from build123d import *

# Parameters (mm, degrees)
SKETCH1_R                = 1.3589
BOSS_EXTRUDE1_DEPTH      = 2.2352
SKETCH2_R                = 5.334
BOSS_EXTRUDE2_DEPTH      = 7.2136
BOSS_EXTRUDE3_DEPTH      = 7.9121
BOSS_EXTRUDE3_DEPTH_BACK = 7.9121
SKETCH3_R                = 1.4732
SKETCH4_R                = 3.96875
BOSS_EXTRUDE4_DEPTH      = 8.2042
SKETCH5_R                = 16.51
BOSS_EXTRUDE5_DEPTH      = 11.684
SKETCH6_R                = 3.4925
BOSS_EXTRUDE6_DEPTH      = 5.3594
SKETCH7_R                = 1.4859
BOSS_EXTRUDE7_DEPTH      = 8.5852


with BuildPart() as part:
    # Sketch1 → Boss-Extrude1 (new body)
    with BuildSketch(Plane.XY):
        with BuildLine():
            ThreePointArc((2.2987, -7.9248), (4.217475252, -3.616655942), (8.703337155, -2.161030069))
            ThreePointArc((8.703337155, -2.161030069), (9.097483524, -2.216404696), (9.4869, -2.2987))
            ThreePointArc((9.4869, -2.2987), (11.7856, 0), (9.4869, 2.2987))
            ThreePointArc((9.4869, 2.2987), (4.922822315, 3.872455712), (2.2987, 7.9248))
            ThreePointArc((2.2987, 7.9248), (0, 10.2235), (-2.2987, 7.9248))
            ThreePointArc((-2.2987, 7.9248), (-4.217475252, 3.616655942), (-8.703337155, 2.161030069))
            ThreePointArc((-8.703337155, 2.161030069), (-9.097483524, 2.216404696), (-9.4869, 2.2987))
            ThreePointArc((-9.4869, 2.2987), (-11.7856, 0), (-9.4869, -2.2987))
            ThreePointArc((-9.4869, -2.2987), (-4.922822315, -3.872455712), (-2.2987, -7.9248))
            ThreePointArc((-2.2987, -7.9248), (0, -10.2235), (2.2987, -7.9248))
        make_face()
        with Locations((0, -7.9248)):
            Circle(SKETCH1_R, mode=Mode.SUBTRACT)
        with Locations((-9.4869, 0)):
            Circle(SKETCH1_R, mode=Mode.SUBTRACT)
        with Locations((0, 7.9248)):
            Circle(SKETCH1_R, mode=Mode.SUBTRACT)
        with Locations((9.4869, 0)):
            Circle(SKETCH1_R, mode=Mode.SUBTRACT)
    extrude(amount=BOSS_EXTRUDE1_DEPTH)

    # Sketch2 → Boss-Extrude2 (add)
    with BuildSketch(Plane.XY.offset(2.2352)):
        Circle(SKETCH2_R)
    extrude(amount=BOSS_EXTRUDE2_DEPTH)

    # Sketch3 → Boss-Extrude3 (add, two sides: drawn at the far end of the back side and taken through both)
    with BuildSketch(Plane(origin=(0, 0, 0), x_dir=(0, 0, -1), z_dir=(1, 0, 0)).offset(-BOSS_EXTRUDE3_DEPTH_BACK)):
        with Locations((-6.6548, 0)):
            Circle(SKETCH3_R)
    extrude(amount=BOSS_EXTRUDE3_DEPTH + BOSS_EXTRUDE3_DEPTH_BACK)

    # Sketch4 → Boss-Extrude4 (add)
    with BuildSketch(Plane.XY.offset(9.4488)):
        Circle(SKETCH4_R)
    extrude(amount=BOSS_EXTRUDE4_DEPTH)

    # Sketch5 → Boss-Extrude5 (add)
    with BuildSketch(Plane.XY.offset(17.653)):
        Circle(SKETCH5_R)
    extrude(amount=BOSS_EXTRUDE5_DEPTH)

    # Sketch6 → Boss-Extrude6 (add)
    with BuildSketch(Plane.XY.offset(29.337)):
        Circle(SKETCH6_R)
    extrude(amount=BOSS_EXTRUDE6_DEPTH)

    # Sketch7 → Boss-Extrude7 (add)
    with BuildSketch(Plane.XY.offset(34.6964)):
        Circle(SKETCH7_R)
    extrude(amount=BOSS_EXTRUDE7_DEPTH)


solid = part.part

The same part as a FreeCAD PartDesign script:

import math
import FreeCAD as App
import Part
import Sketcher
Q = App.Units.Quantity

doc = App.newDocument("Part")
body = doc.addObject("PartDesign::Body", "Body")

# Sketch on XY plane
sketch1 = body.newObject("Sketcher::SketchObject", "Sketch")
sketch1.AttachmentSupport = (doc.getObject("XY_Plane"), [""])
sketch1.MapMode = "FlatFace"
sketch1.addGeometry([
    Part.ArcOfCircle(Part.Circle(App.Vector(8.1, -7.9, 0), App.Vector(0, 0, 1), 5.8), math.radians(84), math.radians(180)),  # 0
    Part.ArcOfCircle(Part.Circle(App.Vector(8.1, -7.9, 0), App.Vector(0, 0, 1), 5.8), math.radians(76.1), math.radians(83.97)),  # 1
    Part.ArcOfCircle(Part.Circle(App.Vector(9.5, 0, 0), App.Vector(0, 0, 1), 2.3), math.radians(-90), math.radians(90)),  # 2
    Part.ArcOfCircle(Part.Circle(App.Vector(9.5, 9.7, 0), App.Vector(0, 0, 1), 7.4), math.radians(-166), math.radians(-90)),  # 3
    Part.ArcOfCircle(Part.Circle(App.Vector(0, 7.9, 0), App.Vector(0, 0, 1), 2.3), math.radians(0), math.radians(180)),  # 4
    Part.ArcOfCircle(Part.Circle(App.Vector(-8.1, 7.9, 0), App.Vector(0, 0, 1), 5.8), math.radians(-96), math.radians(0)),  # 5
    Part.ArcOfCircle(Part.Circle(App.Vector(-8.1, 7.9, 0), App.Vector(0, 0, 1), 5.8), math.radians(-103.9), math.radians(-96.03)),  # 6
    Part.ArcOfCircle(Part.Circle(App.Vector(-9.5, 0, 0), App.Vector(0, 0, 1), 2.3), math.radians(90), math.radians(270)),  # 7
    Part.ArcOfCircle(Part.Circle(App.Vector(-9.5, -9.7, 0), App.Vector(0, 0, 1), 7.4), math.radians(14), math.radians(90)),  # 8
    Part.ArcOfCircle(Part.Circle(App.Vector(0, -7.9, 0), App.Vector(0, 0, 1), 2.3), math.radians(180), math.radians(360)),  # 9
    Part.Circle(App.Vector(0, -7.9, 0), App.Vector(0, 0, 1), 1.4),  # 10
    Part.Circle(App.Vector(-9.5, 0, 0), App.Vector(0, 0, 1), 1.4),  # 11
    Part.Circle(App.Vector(9.5, 0, 0), App.Vector(0, 0, 1), 1.4),  # 12
    Part.Circle(App.Vector(0, 7.9, 0), App.Vector(0, 0, 1), 1.4),  # 13
], False)
sketch1.addConstraint([
    Sketcher.Constraint("Tangent", 0, 1, 1, 2),
    Sketcher.Constraint("Coincident", 1, 1, 2, 1),
    Sketcher.Constraint("Tangent", 2, 2, 3, 2),
    Sketcher.Constraint("Coincident", 3, 1, 4, 1),
    Sketcher.Constraint("Tangent", 4, 2, 5, 2),
    Sketcher.Constraint("Tangent", 5, 1, 6, 2),
    Sketcher.Constraint("Coincident", 6, 1, 7, 1),
    Sketcher.Constraint("Tangent", 7, 2, 8, 2),
    Sketcher.Constraint("Coincident", 8, 1, 9, 1),
    Sketcher.Constraint("Tangent", 9, 2, 0, 2),
    Sketcher.Constraint("Coincident", 10, 3, 9, 3),
    Sketcher.Constraint("Coincident", 11, 3, 7, 3),
    Sketcher.Constraint("Coincident", 12, 3, 2, 3),
    Sketcher.Constraint("Coincident", 13, 3, 4, 3),
    Sketcher.Constraint("Equal", 0, 1),
    Sketcher.Constraint("Equal", 2, 4),
    Sketcher.Constraint("Equal", 1, 5),
    Sketcher.Constraint("Equal", 5, 6),
    Sketcher.Constraint("Equal", 4, 7),
    Sketcher.Constraint("Equal", 3, 8),
    Sketcher.Constraint("Equal", 7, 9),
    Sketcher.Constraint("Equal", 10, 11),
    Sketcher.Constraint("Equal", 11, 12),
    Sketcher.Constraint("Equal", 12, 13),
    Sketcher.Constraint("Symmetric", 0, 3, 5, 3, -1, 1),
    Sketcher.Constraint("Symmetric", 2, 3, 7, 3, -1, 1),
    Sketcher.Constraint("Symmetric", 3, 1, 4, 2, -2),
    Sketcher.Constraint("Symmetric", 2, 2, 6, 1, -2),
    Sketcher.Constraint("Horizontal", 4, 3, 5, 3),
    Sketcher.Constraint("Horizontal", 1, 3, 9, 3),
    Sketcher.Constraint("Horizontal", 10, 3, 8, 1),
    Sketcher.Constraint("Vertical", 2, 3, 3, 3),
    Sketcher.Constraint("Diameter", 10, Q("0.107 in")),
    Sketcher.Constraint("Radius", 2, Q("0.0905 in")),
    Sketcher.Constraint("DistanceY", 0, 3, -1, 1, Q("0.312 in")),
    Sketcher.Constraint("Radius", 3, 7.40506),
    Sketcher.Constraint("DistanceY", 0, 1, -1, 1, 2.16103),
    Sketcher.Constraint("DistanceY", -1, 1, 5, 1, 2.16103),
])
pad1 = body.newObject("PartDesign::Pad", "Pad")
pad1.Profile = sketch1
pad1.Length = Q("0.088 in")

# Sketch on XY plane
sketch2 = body.newObject("Sketcher::SketchObject", "Sketch001")
sketch2.AttachmentSupport = (doc.getObject("XY_Plane"), [""])
sketch2.MapMode = "FlatFace"
sketch2.AttachmentOffset = App.Placement(App.Vector(0, 0, 0.088 * 25.4), App.Rotation())
sketch2.addGeometry(Part.Circle(App.Vector(0, 0, 0), App.Vector(0, 0, 1), 5), False)
sketch2.addConstraint([
    Sketcher.Constraint("Coincident", 0, 3, -1, 1),
    Sketcher.Constraint("Diameter", 0, Q("0.42 in")),
])
pad2 = body.newObject("PartDesign::Pad", "Pad001")
pad2.Profile = sketch2
pad2.Length = Q("0.284 in")

# Sketch on YZ plane
sketch3 = body.newObject("Sketcher::SketchObject", "Sketch002")
sketch3.AttachmentSupport = (doc.getObject("YZ_Plane"), [""])
sketch3.MapMode = "FlatFace"
sketch3.addGeometry(Part.Circle(App.Vector(0, 6.7, 0), App.Vector(0, 0, 1), 1.5), False)
sketch3.addConstraint([
    Sketcher.Constraint("PointOnObject", 0, 3, -2),
    Sketcher.Constraint("Diameter", 0, Q("0.116 in")),
    Sketcher.Constraint("DistanceY", -1, 1, 0, 3, Q("0.262 in")),
])
pad3 = body.newObject("PartDesign::Pad", "Pad002")
pad3.Profile = sketch3
pad3.Type = "TwoLengths"
pad3.Length = Q("0.3115 in")
pad3.Length2 = Q("0.3115 in")

# Sketch on XY plane
sketch4 = body.newObject("Sketcher::SketchObject", "Sketch003")
sketch4.AttachmentSupport = (doc.getObject("XY_Plane"), [""])
sketch4.MapMode = "FlatFace"
sketch4.AttachmentOffset = App.Placement(App.Vector(0, 0, 0.372 * 25.4), App.Rotation())
sketch4.addGeometry(Part.Circle(App.Vector(0, 0, 0), App.Vector(0, 0, 1), 4), False)
sketch4.addConstraint([
    Sketcher.Constraint("Coincident", 0, 3, -1, 1),
    Sketcher.Constraint("Diameter", 0, Q("0.3125 in")),
])
pad4 = body.newObject("PartDesign::Pad", "Pad003")
pad4.Profile = sketch4
pad4.Length = Q("0.323 in")

# Sketch on XY plane
sketch5 = body.newObject("Sketcher::SketchObject", "Sketch004")
sketch5.AttachmentSupport = (doc.getObject("XY_Plane"), [""])
sketch5.MapMode = "FlatFace"
sketch5.AttachmentOffset = App.Placement(App.Vector(0, 0, 0.695 * 25.4), App.Rotation())
sketch5.addGeometry(Part.Circle(App.Vector(0, 0, 0), App.Vector(0, 0, 1), 17), False)
sketch5.addConstraint([
    Sketcher.Constraint("Coincident", 0, 3, -1, 1),
    Sketcher.Constraint("Diameter", 0, Q("1.3 in")),
])
pad5 = body.newObject("PartDesign::Pad", "Pad004")
pad5.Profile = sketch5
pad5.Length = Q("0.46 in")

# Sketch on XY plane
sketch6 = body.newObject("Sketcher::SketchObject", "Sketch005")
sketch6.AttachmentSupport = (doc.getObject("XY_Plane"), [""])
sketch6.MapMode = "FlatFace"
sketch6.AttachmentOffset = App.Placement(App.Vector(0, 0, 1.155 * 25.4), App.Rotation())
sketch6.addGeometry(Part.Circle(App.Vector(0, 0, 0), App.Vector(0, 0, 1), 3.5), False)
sketch6.addConstraint([
    Sketcher.Constraint("Coincident", 0, 3, -1, 1),
    Sketcher.Constraint("Diameter", 0, Q("0.275 in")),
])
pad6 = body.newObject("PartDesign::Pad", "Pad005")
pad6.Profile = sketch6
pad6.Length = Q("0.211 in")

# Sketch on XY plane
sketch7 = body.newObject("Sketcher::SketchObject", "Sketch006")
sketch7.AttachmentSupport = (doc.getObject("XY_Plane"), [""])
sketch7.MapMode = "FlatFace"
sketch7.AttachmentOffset = App.Placement(App.Vector(0, 0, 1.366 * 25.4), App.Rotation())
sketch7.addGeometry(Part.Circle(App.Vector(0, 0, 0), App.Vector(0, 0, 1), 1.5), False)
sketch7.addConstraint([
    Sketcher.Constraint("Coincident", 0, 3, -1, 1),
    Sketcher.Constraint("Diameter", 0, Q("0.117 in")),
])
pad7 = body.newObject("PartDesign::Pad", "Pad006")
pad7.Profile = sketch7
pad7.Length = Q("0.338 in")

doc.recompute()
